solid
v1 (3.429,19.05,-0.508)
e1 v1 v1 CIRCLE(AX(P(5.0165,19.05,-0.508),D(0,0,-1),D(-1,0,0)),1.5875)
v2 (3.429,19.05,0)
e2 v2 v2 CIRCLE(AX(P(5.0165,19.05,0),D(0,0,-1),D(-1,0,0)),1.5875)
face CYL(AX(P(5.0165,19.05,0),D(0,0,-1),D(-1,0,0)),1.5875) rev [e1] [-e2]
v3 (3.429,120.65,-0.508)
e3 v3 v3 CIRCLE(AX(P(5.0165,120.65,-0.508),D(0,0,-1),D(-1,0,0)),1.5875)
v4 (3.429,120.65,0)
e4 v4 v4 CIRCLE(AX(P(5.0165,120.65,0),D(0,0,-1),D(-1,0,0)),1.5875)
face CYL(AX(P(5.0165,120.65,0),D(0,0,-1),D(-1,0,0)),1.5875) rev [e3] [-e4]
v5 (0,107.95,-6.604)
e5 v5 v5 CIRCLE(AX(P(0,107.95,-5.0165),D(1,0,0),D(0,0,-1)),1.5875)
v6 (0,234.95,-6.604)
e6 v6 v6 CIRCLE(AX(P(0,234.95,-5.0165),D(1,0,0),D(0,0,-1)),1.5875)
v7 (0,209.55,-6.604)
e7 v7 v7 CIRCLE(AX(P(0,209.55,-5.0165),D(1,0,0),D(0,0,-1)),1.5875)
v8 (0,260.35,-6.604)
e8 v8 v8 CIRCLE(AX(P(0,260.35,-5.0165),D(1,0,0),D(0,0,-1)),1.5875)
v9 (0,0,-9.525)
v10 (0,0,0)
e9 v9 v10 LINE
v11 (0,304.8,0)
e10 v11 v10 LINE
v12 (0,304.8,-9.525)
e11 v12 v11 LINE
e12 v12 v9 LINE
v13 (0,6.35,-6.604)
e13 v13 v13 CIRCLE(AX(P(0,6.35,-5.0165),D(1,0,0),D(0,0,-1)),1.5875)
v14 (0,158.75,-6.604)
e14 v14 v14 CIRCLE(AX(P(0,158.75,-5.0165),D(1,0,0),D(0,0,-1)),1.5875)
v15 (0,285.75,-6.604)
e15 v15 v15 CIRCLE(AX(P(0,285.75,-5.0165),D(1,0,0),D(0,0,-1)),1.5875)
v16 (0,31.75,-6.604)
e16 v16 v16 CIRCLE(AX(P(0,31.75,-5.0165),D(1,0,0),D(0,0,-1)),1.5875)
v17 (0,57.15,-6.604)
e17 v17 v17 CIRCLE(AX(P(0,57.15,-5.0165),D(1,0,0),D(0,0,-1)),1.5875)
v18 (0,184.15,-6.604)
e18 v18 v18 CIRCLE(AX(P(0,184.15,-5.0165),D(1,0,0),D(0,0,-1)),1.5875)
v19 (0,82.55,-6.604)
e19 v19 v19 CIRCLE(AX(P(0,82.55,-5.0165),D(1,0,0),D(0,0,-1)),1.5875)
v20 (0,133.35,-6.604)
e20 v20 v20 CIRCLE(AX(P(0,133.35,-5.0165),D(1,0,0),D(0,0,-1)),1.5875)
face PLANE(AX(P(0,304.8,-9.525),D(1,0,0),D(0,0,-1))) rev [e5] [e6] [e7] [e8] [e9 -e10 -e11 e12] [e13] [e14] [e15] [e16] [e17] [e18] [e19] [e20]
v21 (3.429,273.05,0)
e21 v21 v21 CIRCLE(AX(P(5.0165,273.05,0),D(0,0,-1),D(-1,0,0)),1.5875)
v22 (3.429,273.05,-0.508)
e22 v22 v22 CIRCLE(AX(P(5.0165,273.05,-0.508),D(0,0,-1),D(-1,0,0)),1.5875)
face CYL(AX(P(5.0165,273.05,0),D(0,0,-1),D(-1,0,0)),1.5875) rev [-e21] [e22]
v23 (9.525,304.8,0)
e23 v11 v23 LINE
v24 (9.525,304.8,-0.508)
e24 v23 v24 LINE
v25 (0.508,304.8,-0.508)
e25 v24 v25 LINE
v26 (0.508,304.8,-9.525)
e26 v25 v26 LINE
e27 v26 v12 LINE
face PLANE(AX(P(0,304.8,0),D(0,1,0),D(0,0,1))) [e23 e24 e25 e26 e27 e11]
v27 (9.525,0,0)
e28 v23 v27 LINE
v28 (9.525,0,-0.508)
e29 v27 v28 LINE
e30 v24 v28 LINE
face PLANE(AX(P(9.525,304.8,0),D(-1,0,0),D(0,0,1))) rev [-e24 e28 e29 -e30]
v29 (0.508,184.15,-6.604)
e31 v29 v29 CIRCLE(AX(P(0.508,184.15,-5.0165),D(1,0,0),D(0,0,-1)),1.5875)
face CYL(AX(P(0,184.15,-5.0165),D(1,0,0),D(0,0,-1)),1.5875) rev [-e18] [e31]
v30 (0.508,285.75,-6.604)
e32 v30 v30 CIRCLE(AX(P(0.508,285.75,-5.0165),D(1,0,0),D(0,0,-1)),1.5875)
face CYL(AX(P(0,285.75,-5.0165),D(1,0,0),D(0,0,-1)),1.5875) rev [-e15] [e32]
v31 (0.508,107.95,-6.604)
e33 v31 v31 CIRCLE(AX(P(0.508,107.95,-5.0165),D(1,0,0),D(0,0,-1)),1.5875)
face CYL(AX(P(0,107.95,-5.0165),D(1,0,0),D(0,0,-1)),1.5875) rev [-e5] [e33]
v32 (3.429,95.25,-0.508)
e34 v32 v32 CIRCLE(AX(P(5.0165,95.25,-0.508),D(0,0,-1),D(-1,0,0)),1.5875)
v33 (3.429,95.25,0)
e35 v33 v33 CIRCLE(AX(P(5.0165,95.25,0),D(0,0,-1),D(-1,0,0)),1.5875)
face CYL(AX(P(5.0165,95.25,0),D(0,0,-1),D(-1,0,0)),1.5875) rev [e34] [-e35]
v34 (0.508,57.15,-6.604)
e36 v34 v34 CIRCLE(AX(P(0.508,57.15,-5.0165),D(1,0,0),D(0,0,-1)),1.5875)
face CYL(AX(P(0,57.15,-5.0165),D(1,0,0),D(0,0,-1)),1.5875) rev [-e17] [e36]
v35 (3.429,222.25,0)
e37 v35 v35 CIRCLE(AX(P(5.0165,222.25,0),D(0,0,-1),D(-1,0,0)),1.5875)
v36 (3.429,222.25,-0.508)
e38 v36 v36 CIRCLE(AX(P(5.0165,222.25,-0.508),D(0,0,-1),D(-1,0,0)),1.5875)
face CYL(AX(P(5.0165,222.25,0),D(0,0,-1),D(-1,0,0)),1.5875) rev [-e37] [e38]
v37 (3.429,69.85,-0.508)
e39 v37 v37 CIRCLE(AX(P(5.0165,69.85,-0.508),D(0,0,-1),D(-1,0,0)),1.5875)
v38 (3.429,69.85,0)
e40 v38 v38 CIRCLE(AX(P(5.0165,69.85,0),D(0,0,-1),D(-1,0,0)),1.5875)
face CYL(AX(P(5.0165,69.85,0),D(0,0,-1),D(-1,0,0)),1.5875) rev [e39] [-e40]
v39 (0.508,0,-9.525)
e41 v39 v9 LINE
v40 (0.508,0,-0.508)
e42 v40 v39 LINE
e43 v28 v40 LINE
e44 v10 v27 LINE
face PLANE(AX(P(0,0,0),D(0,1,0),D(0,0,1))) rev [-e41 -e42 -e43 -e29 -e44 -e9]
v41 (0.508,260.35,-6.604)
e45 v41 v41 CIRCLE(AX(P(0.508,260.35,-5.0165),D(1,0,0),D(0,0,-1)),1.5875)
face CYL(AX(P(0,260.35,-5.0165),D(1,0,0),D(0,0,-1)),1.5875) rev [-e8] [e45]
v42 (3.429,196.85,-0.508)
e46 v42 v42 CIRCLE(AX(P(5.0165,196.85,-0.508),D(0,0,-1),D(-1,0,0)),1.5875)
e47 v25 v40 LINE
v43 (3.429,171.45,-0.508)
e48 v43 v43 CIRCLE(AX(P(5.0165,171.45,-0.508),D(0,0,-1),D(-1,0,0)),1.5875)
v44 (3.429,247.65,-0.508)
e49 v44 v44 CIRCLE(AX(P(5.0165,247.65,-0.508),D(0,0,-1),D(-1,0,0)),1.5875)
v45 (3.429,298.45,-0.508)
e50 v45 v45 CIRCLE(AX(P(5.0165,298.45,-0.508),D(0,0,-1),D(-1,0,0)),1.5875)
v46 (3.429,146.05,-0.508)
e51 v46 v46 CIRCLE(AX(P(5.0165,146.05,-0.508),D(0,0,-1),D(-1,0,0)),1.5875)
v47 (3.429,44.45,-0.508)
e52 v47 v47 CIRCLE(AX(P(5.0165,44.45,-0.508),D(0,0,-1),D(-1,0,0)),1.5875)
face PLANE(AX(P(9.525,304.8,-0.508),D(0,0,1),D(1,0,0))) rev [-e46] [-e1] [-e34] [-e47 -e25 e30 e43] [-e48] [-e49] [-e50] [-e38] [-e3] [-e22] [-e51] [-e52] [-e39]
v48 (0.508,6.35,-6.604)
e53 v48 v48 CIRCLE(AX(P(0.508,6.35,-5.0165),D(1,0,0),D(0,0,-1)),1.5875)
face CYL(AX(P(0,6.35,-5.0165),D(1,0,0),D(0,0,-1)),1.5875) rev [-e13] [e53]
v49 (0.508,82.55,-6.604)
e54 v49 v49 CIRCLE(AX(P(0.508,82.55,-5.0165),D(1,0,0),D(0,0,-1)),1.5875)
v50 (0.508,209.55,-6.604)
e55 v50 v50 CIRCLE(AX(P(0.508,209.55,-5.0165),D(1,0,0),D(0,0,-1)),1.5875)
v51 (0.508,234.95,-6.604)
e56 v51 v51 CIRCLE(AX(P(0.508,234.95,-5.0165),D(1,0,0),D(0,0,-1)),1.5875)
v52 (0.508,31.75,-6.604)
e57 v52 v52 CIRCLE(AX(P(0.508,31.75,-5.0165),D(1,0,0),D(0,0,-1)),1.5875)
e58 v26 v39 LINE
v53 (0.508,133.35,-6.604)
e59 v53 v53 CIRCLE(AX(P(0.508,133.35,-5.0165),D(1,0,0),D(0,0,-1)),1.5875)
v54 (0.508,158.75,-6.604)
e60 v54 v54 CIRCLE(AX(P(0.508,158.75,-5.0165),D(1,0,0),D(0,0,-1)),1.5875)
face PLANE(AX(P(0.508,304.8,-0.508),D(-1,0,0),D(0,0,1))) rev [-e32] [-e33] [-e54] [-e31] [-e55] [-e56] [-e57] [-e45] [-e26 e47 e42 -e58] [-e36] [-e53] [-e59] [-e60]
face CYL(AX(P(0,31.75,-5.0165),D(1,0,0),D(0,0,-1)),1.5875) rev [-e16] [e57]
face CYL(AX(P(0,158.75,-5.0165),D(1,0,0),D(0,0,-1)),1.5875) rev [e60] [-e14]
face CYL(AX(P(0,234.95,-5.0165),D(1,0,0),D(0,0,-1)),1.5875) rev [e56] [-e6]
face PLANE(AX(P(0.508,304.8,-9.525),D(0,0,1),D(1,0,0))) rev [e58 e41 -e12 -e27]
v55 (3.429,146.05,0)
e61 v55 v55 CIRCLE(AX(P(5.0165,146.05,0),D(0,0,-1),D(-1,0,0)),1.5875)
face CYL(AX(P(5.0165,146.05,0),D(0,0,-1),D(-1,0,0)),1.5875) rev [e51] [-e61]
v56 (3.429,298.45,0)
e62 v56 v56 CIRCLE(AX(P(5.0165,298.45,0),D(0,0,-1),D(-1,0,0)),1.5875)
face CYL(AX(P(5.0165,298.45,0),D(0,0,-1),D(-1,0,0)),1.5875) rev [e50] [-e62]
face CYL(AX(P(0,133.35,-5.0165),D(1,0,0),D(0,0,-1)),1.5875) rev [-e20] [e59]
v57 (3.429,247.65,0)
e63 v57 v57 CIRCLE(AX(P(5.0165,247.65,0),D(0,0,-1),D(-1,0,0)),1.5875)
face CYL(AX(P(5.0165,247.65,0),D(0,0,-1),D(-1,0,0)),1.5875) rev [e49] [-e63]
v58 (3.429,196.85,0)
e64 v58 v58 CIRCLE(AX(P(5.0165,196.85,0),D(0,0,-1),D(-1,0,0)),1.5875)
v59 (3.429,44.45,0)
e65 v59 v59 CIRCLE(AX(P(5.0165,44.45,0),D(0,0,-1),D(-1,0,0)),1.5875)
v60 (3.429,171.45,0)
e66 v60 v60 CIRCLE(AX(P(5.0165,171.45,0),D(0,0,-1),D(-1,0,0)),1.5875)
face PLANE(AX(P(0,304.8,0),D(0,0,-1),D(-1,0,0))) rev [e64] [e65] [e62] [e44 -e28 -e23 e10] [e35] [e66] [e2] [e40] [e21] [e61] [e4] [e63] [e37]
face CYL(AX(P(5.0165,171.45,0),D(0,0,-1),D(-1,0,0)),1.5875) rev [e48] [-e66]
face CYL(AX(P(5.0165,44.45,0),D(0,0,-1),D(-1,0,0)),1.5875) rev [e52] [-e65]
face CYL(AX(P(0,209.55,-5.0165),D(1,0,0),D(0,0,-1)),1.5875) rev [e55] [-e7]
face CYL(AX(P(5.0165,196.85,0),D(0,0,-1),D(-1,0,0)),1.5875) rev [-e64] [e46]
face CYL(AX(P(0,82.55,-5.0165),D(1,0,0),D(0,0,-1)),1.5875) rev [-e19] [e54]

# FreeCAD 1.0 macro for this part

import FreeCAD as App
import Part
import Sketcher
from FreeCAD import Vector
Q = App.Units.Quantity


def add_polygon(sketch, points):
    """Adds a closed chain of lines whose ends are joined by coincident constraints."""
    first, n = sketch.GeometryCount, len(points)
    for a, b in zip(points, points[1:] + points[:1]):
        sketch.addGeometry(Part.LineSegment(App.Vector(*a, 0), App.Vector(*b, 0)), False)
    for i in range(n):
        sketch.addConstraint(Sketcher.Constraint("Coincident", first + i, 2, first + (i + 1) % n, 1))

doc = App.newDocument("Part")
body = doc.addObject("PartDesign::Body", "Body")

# Sketch on XZ plane
sketch1 = doc.addObject("Sketcher::SketchObject", "Sketch")
body.addObject(sketch1)
sketch1.AttachmentSupport = (doc.XZ_Plane, [""])
sketch1.MapMode = "FlatFace"
add_polygon(sketch1, [(0, 0), (9.5, 0), (9.5, -0.5), (0.5, -0.5), (0.5, -9.5), (0, -9.5)])  # lines 0-5
sketch1.addConstraint(Sketcher.Constraint("Horizontal", 0))
sketch1.addConstraint(Sketcher.Constraint("Vertical", 1))
sketch1.addConstraint(Sketcher.Constraint("Horizontal", 2))
sketch1.addConstraint(Sketcher.Constraint("Vertical", 3))
sketch1.addConstraint(Sketcher.Constraint("Horizontal", 4))
sketch1.addConstraint(Sketcher.Constraint("Vertical", 5))
sketch1.addConstraint(Sketcher.Constraint("Coincident", 5, 2, -1, 1))
sketch1.addConstraint(Sketcher.Constraint("Equal", 4, 1))
sketch1.addConstraint(Sketcher.Constraint("Equal", 2, 3))
sketch1.addConstraint(Sketcher.Constraint("DistanceX", 4, 2, 4, 1, Q("0.02 in")))
sketch1.addConstraint(Sketcher.Constraint("DistanceX", 0, 1, 0, 2, Q("0.375 in")))
pad1 = doc.addObject("PartDesign::Pad", "Pad")
body.addObject(pad1)
pad1.Profile = sketch1
pad1.Length = Q("12 in")
pad1.Reversed = True

# Sketch on XY plane
sketch2 = doc.addObject("Sketcher::SketchObject", "Sketch001")
body.addObject(sketch2)
sketch2.AttachmentSupport = (doc.XY_Plane, [""])
sketch2.MapMode = "FlatFace"
sketch2.AttachmentOffset = App.Placement(Vector(0, 0, -0.02 * 25.4), App.Rotation())
sketch2.addGeometry(Part.Circle(Vector(5, 298.4, 0), Vector(0, 0, 1), 1.6), False)
sketch2.addConstraint(Sketcher.Constraint("Diameter", 0, Q("0.125 in")))
sketch2.addConstraint(Sketcher.Constraint("DistanceY", -1, 1, 0, 3, Q("11.75 in")))
sketch2.addConstraint(Sketcher.Constraint("DistanceX", -1, 1, 0, 3, Q("0.1975 in")))
pocket1 = doc.addObject("PartDesign::Pocket", "Pocket")
body.addObject(pocket1)
pocket1.Profile = sketch2
pocket1.Type = "ThroughAll"
pocket1.Reversed = True
doc.recompute()

linearpattern = doc.addObject("PartDesign::LinearPattern", "LinearPattern")
body.addObject(linearpattern)
linearpattern.Originals = [pocket1]
linearpattern.Direction = (doc.Y_Axis, [""])
linearpattern.Mode = "offset"
linearpattern.Offset = Q("1 in")
linearpattern.Occurrences = 12
linearpattern.Reversed = True
body.Tip = linearpattern

# Sketch on YZ plane
sketch3 = doc.addObject("Sketcher::SketchObject", "Sketch002")
body.addObject(sketch3)
sketch3.AttachmentSupport = (doc.YZ_Plane, [""])
sketch3.MapMode = "FlatFace"
sketch3.AttachmentOffset = App.Placement(Vector(0, 0, 0.02 * 25.4), App.Rotation())
sketch3.addGeometry(Part.Circle(Vector(285.8, -5, 0), Vector(0, 0, 1), 1.6), False)
sketch3.addConstraint(Sketcher.Constraint("Diameter", 0, Q("0.125 in")))
sketch3.addConstraint(Sketcher.Constraint("DistanceX", -1, 1, 0, 3, Q("11.25 in")))
sketch3.addConstraint(Sketcher.Constraint("DistanceY", 0, 3, -1, 1, Q("0.1975 in")))
pocket2 = doc.addObject("PartDesign::Pocket", "Pocket001")
body.addObject(pocket2)
pocket2.Profile = sketch3
pocket2.Type = "ThroughAll"
doc.recompute()

linearpattern2 = doc.addObject("PartDesign::LinearPattern", "LinearPattern001")
body.addObject(linearpattern2)
linearpattern2.Originals = [pocket2]
linearpattern2.Direction = (doc.Y_Axis, [""])
linearpattern2.Mode = "offset"
linearpattern2.Offset = Q("1 in")
linearpattern2.Occurrences = 12
linearpattern2.Reversed = True
body.Tip = linearpattern2

doc.recompute()
